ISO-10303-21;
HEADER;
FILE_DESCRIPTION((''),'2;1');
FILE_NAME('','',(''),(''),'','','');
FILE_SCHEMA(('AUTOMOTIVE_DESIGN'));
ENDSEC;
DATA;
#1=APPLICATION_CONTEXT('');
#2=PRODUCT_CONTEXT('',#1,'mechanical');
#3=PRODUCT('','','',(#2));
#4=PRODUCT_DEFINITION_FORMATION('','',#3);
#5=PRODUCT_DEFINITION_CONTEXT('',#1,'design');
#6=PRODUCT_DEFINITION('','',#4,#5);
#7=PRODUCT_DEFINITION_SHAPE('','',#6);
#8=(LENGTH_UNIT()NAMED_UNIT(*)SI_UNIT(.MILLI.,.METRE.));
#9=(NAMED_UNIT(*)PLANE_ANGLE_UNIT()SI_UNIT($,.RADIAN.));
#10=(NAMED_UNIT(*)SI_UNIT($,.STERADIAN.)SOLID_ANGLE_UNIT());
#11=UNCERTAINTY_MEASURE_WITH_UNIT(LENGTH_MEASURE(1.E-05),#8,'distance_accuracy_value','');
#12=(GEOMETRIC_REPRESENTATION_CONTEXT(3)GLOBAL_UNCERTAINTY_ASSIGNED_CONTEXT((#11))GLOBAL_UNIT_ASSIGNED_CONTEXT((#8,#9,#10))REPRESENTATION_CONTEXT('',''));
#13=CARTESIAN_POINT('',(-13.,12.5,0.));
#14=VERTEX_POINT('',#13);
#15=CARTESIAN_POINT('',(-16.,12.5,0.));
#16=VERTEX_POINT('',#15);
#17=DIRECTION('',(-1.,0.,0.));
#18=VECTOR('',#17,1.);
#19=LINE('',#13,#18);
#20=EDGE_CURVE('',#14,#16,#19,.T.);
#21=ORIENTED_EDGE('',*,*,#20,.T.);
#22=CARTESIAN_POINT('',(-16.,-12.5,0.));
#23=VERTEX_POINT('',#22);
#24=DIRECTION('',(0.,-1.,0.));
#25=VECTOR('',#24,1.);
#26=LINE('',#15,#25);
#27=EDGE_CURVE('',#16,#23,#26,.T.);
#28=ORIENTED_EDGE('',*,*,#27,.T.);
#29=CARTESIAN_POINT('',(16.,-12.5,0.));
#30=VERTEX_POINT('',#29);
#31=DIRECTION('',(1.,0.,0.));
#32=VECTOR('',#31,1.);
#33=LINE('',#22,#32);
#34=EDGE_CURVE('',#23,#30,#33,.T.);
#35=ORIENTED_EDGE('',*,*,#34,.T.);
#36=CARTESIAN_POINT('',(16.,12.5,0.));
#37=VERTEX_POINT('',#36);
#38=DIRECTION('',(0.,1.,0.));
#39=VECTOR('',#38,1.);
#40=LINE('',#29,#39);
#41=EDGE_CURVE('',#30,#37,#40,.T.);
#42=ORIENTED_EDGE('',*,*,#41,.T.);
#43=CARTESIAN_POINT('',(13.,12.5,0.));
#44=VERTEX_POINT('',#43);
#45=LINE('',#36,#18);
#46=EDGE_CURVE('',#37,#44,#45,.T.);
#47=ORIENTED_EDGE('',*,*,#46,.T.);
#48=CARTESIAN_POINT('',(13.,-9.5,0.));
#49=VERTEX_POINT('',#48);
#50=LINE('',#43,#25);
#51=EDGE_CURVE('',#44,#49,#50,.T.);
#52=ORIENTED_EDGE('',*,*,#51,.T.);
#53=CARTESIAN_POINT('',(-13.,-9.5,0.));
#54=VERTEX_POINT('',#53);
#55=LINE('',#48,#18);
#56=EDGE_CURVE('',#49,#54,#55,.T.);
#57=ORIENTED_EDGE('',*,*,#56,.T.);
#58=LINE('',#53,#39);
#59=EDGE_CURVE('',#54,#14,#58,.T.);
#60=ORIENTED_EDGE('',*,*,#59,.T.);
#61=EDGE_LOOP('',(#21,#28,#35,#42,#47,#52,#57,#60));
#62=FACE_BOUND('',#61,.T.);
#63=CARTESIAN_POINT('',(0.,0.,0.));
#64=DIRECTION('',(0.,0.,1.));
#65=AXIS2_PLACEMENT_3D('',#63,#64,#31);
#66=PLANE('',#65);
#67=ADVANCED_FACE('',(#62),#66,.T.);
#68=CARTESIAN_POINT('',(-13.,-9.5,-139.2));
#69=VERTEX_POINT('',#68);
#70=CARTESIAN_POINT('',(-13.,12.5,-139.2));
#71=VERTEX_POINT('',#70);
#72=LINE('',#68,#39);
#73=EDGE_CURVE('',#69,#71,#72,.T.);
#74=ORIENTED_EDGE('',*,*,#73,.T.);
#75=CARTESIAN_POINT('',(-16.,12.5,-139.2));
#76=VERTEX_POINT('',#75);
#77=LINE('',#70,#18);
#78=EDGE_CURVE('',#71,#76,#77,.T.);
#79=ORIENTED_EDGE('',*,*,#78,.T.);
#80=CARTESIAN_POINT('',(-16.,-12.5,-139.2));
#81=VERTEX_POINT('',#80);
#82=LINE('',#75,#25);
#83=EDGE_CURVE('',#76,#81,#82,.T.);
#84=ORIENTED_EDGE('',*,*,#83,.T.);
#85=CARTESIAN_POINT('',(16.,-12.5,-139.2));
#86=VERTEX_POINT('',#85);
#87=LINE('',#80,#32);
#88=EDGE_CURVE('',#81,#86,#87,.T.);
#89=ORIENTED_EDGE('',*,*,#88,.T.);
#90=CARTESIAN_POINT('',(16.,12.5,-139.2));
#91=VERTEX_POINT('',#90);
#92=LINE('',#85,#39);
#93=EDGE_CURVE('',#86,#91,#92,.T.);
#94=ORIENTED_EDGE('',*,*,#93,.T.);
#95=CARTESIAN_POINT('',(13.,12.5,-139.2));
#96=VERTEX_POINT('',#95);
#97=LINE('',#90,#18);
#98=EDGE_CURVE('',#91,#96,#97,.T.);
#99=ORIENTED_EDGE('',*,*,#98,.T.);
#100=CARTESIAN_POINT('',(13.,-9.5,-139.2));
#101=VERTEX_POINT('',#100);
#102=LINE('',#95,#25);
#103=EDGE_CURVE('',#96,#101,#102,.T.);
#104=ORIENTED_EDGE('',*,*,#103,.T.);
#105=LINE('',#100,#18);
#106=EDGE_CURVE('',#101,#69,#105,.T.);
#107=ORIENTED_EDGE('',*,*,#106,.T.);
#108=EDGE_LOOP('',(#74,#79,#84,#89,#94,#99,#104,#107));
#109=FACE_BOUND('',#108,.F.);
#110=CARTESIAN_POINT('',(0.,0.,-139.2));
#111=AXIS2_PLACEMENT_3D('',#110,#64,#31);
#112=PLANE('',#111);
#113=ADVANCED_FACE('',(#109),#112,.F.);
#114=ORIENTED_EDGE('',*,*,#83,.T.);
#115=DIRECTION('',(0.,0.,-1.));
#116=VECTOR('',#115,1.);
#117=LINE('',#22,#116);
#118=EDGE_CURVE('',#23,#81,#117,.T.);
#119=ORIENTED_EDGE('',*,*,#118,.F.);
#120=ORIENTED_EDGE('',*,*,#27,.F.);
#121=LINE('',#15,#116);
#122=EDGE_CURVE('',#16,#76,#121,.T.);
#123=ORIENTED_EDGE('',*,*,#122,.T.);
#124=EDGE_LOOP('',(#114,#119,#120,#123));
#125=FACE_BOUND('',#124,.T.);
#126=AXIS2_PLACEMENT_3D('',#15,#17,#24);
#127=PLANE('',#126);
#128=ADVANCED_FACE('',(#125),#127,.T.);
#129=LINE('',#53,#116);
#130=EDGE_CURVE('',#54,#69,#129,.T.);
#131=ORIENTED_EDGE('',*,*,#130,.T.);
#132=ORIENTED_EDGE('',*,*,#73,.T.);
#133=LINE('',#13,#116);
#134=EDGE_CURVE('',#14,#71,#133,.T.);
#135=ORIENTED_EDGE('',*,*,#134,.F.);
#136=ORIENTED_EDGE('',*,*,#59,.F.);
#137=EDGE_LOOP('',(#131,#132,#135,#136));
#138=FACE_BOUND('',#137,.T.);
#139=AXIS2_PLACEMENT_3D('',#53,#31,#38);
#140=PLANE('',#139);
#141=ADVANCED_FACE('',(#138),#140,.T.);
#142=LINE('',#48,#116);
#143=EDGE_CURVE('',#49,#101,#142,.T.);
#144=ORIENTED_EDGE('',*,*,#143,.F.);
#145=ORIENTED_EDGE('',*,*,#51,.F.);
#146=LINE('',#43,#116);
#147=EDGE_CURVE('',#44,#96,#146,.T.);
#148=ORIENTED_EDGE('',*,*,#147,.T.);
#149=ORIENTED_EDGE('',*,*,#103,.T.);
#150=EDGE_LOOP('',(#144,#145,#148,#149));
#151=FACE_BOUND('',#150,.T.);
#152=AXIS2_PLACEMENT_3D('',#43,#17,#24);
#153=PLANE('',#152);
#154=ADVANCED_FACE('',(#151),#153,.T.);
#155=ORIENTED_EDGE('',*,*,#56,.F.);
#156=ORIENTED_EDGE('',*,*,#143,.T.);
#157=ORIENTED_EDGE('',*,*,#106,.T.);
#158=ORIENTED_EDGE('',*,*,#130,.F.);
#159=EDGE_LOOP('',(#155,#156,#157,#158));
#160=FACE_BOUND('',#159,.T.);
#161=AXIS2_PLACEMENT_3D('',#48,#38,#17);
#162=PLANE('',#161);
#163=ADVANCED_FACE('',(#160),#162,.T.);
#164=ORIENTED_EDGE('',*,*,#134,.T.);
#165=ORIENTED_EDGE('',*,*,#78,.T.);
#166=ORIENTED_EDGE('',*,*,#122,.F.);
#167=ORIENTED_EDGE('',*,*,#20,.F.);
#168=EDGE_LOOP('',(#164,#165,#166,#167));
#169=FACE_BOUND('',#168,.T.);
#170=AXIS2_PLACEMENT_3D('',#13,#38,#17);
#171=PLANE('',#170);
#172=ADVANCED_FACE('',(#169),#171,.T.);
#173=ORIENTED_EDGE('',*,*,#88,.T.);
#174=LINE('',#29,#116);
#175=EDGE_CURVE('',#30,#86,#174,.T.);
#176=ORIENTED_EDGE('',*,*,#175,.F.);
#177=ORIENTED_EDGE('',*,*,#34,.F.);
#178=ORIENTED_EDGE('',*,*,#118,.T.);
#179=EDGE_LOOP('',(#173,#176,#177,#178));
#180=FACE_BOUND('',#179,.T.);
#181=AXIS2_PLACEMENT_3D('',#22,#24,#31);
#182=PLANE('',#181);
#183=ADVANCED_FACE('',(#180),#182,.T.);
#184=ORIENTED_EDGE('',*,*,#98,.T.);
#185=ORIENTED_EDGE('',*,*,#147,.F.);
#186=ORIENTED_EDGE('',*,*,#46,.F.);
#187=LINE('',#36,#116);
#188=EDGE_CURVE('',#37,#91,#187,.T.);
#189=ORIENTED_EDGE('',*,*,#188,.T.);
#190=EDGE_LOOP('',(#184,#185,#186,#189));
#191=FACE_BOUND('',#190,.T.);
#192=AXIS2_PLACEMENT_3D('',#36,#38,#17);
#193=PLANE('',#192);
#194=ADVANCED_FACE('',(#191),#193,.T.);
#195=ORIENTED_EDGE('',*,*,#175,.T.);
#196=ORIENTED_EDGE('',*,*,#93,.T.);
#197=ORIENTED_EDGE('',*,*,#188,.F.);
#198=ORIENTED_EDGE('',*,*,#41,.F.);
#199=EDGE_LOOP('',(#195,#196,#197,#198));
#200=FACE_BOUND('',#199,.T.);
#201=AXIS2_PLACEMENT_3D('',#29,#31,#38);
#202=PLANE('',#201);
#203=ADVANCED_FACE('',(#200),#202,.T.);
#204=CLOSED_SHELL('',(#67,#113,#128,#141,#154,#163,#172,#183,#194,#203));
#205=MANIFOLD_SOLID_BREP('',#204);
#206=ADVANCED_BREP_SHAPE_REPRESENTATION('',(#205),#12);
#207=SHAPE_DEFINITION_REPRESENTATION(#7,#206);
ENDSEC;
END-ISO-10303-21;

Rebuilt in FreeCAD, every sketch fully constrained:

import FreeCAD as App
import Part
import Sketcher

doc = App.newDocument("Part")
body = doc.addObject("PartDesign::Body", "Body")

sketch1 = doc.addObject("Sketcher::SketchObject", "Sketch")
body.addObject(sketch1)
sketch1.AttachmentSupport = (doc.XY_Plane, [""])
sketch1.MapMode = "FlatFace"
sketch1.addGeometry(Part.LineSegment(App.Vector(-16, 12.5, 0), App.Vector(-16, -12.5, 0)), False)
sketch1.addGeometry(Part.LineSegment(App.Vector(-16, -12.5, 0), App.Vector(16, -12.5, 0)), False)
sketch1.addGeometry(Part.LineSegment(App.Vector(16, -12.5, 0), App.Vector(16, 12.5, 0)), False)
sketch1.addGeometry(Part.LineSegment(App.Vector(16, 12.5, 0), App.Vector(13, 12.5, 0)), False)
sketch1.addGeometry(Part.LineSegment(App.Vector(13, 12.5, 0), App.Vector(13, -9.5, 0)), False)
sketch1.addGeometry(Part.LineSegment(App.Vector(13, -9.5, 0), App.Vector(-13, -9.5, 0)), False)
sketch1.addGeometry(Part.LineSegment(App.Vector(-13, -9.5, 0), App.Vector(-13, 12.5, 0)), False)
sketch1.addGeometry(Part.LineSegment(App.Vector(-13, 12.5, 0), App.Vector(-16, 12.5, 0)), False)
sketch1.addConstraint(Sketcher.Constraint("Coincident", 0, 2, 1, 1))
sketch1.addConstraint(Sketcher.Constraint("Coincident", 1, 2, 2, 1))
sketch1.addConstraint(Sketcher.Constraint("Coincident", 2, 2, 3, 1))
sketch1.addConstraint(Sketcher.Constraint("Coincident", 3, 2, 4, 1))
sketch1.addConstraint(Sketcher.Constraint("Coincident", 4, 2, 5, 1))
sketch1.addConstraint(Sketcher.Constraint("Coincident", 5, 2, 6, 1))
sketch1.addConstraint(Sketcher.Constraint("Coincident", 6, 2, 7, 1))
sketch1.addConstraint(Sketcher.Constraint("Coincident", 7, 2, 0, 1))
sketch1.addConstraint(Sketcher.Constraint("Vertical", 0))
sketch1.addConstraint(Sketcher.Constraint("Horizontal", 1))
sketch1.addConstraint(Sketcher.Constraint("Vertical", 2))
sketch1.addConstraint(Sketcher.Constraint("Horizontal", 3))
sketch1.addConstraint(Sketcher.Constraint("Vertical", 4))
sketch1.addConstraint(Sketcher.Constraint("Horizontal", 5))
sketch1.addConstraint(Sketcher.Constraint("Vertical", 6))
sketch1.addConstraint(Sketcher.Constraint("Horizontal", 7))
sketch1.addConstraint(Sketcher.Constraint("Symmetric", 0, 2, 2, 2, -1, 1))
sketch1.addConstraint(Sketcher.Constraint("Symmetric", 3, 2, 6, 2, -2))
sketch1.addConstraint(Sketcher.Constraint("DistanceX", 1, 1, 1, 2, 32.0))
sketch1.addConstraint(Sketcher.Constraint("DistanceX", 3, 2, 3, 1, 3.0))
sketch1.addConstraint(Sketcher.Constraint("DistanceY", 0, 2, 0, 1, 25.0))
sketch1.addConstraint(Sketcher.Constraint("DistanceY", 4, 2, 4, 1, 22.0))
pad1 = doc.addObject("PartDesign::Pad", "Pad")
body.addObject(pad1)
pad1.Profile = sketch1
pad1.Length = 139.2
pad1.Reversed = True

doc.recompute()
